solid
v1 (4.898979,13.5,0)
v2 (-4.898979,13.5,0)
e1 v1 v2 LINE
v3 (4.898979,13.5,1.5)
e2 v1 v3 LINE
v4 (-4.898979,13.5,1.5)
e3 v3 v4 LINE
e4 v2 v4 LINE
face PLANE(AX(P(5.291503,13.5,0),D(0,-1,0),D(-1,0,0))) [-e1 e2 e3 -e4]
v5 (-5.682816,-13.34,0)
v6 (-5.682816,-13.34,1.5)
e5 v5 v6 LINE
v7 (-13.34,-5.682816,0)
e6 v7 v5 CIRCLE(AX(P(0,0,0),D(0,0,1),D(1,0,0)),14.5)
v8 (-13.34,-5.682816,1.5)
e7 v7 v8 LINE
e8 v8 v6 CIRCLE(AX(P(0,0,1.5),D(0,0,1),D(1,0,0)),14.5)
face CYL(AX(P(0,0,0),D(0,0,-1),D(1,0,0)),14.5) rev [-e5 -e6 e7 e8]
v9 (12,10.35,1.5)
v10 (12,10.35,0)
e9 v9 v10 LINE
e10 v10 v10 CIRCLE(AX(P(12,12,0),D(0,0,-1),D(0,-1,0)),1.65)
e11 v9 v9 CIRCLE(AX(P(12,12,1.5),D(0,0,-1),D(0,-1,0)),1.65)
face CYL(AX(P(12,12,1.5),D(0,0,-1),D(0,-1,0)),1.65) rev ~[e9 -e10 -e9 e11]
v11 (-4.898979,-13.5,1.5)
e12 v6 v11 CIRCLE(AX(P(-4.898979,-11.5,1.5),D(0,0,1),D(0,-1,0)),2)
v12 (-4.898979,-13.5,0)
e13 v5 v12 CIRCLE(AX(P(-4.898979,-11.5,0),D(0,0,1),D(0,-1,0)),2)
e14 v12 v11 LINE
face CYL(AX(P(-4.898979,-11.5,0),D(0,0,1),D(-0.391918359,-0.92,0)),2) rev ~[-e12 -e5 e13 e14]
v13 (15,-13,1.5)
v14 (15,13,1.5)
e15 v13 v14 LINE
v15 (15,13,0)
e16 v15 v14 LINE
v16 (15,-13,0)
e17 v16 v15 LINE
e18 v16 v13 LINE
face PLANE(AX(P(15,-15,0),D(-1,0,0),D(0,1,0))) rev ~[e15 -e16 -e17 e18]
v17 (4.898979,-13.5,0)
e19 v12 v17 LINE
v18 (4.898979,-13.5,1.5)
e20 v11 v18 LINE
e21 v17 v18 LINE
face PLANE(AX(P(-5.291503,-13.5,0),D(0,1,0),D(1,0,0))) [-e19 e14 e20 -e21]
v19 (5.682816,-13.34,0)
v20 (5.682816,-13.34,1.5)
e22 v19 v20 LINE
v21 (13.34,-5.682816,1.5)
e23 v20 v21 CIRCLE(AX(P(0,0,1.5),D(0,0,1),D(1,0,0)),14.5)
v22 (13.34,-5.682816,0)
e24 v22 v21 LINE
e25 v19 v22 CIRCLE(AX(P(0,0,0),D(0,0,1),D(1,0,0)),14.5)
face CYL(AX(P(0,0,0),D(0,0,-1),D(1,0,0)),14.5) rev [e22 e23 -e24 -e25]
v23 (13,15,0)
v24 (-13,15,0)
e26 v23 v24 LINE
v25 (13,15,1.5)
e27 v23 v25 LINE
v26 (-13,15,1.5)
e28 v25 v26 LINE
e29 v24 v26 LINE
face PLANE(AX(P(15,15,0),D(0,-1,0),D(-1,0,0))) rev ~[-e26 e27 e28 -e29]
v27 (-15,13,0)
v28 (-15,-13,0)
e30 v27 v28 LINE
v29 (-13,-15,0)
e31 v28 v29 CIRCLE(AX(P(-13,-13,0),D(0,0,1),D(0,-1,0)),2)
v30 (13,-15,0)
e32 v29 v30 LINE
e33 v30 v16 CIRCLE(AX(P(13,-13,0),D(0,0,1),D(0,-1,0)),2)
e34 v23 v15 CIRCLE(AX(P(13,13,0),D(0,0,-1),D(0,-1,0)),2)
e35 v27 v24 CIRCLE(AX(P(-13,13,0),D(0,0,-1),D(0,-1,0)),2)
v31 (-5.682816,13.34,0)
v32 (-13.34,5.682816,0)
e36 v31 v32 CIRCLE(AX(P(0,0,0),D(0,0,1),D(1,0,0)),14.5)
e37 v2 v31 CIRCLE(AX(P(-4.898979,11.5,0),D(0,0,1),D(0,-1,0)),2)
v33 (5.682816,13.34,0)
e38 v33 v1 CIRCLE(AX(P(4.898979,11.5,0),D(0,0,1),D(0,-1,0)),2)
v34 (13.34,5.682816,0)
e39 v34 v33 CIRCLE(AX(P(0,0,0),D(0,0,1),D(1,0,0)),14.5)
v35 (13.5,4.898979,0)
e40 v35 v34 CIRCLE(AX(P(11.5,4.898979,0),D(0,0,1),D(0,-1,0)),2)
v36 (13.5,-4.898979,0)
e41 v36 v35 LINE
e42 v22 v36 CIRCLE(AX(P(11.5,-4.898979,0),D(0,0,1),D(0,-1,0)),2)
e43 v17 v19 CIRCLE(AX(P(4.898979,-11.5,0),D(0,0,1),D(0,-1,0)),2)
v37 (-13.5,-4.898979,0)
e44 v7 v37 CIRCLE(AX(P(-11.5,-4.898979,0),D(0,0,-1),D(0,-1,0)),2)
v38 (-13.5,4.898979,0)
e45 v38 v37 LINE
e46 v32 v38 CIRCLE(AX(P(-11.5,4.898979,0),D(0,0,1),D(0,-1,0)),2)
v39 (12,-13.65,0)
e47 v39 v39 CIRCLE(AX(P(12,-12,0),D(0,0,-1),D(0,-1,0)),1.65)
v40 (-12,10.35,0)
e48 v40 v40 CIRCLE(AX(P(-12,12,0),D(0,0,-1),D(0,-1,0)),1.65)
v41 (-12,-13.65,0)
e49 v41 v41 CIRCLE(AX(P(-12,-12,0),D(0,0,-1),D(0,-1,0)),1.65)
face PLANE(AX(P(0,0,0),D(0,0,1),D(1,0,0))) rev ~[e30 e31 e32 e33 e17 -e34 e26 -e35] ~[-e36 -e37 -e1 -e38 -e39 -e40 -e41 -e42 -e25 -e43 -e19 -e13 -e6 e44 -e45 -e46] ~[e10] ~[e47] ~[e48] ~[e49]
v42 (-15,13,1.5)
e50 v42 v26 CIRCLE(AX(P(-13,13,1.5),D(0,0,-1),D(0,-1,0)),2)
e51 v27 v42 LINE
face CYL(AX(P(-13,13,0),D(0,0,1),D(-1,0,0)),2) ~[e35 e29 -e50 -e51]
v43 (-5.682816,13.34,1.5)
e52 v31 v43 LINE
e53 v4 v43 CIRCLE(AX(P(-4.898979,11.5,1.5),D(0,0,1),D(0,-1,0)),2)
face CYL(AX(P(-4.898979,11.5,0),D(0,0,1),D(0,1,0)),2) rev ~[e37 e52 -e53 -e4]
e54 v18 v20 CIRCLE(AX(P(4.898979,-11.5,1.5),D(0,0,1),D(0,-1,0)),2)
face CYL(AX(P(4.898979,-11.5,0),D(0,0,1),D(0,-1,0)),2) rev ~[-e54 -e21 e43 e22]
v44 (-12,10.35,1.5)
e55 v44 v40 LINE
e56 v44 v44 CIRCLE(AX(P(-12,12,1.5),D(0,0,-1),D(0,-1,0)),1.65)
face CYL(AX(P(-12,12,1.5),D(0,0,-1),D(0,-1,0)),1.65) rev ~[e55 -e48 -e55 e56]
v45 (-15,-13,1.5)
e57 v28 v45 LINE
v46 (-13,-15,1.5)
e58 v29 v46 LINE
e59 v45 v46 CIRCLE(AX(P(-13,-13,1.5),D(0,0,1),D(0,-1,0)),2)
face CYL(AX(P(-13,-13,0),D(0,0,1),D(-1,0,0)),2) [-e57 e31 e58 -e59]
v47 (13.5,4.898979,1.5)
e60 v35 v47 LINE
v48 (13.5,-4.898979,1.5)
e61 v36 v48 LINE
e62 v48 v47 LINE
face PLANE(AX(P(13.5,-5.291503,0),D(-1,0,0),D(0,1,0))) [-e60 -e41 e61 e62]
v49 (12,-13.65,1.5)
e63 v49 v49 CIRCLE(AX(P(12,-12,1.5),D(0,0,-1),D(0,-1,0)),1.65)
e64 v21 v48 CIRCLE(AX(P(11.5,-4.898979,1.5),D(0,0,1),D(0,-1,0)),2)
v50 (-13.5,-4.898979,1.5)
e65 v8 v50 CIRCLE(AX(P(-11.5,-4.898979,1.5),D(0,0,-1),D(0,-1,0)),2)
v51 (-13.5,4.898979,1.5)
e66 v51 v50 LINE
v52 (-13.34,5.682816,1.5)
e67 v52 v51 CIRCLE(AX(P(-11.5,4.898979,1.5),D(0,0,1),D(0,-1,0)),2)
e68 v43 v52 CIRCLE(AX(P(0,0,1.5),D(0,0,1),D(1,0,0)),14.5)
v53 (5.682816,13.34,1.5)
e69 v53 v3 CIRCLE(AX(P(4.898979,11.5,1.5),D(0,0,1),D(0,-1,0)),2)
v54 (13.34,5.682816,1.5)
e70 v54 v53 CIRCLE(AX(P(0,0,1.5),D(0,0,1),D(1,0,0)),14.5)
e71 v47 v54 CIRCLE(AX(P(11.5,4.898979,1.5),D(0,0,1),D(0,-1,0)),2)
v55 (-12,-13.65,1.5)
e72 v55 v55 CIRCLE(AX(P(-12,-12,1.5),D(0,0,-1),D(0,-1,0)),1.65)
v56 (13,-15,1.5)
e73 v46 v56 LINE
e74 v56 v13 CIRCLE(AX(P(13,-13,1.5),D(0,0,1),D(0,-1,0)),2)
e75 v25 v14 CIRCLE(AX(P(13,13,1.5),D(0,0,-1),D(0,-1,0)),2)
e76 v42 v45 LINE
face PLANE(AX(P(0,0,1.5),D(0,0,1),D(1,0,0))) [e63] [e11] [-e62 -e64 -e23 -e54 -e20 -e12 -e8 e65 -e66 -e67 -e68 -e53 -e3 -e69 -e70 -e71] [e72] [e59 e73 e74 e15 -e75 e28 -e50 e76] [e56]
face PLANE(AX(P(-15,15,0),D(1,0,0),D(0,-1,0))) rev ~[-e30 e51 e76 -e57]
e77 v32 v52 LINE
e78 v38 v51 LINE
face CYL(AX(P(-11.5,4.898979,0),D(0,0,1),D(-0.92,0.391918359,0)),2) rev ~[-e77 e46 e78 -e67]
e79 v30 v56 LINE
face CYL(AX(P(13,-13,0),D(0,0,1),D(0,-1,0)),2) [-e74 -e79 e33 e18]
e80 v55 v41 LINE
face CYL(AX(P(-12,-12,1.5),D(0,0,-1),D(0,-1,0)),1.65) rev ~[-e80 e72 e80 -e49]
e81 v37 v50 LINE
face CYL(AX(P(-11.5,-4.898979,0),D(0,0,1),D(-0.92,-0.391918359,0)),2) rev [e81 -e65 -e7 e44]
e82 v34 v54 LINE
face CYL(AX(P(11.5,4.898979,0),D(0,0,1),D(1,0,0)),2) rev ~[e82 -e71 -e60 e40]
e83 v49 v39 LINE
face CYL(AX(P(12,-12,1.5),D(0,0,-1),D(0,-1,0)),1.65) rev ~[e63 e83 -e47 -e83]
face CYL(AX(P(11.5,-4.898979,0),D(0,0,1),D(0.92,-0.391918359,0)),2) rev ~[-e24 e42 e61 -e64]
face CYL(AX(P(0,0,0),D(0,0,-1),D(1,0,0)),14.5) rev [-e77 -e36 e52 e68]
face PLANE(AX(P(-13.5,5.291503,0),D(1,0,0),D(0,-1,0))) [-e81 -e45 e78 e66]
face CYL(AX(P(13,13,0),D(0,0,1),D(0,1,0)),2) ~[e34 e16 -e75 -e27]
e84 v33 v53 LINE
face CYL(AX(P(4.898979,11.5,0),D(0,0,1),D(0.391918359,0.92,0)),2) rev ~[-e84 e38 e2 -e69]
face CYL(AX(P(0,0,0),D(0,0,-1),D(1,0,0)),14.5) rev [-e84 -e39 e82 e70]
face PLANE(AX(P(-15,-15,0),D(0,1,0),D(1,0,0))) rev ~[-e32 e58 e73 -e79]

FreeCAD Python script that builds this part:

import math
import FreeCAD as App
import Part
import Sketcher


def edges_at(feature, points):
    """Names of the edges that pass closest to the given points."""
    edges = feature.Shape.Edges
    near = lambda p: min(range(len(edges)), key=lambda i: edges[i].distToShape(Part.Vertex(*p))[0])
    return sorted({f"Edge{near(p) + 1}" for p in points})


def add_polygon(sketch, points):
    """Adds a closed chain of lines whose ends are joined by coincident constraints."""
    first, n = sketch.GeometryCount, len(points)
    for a, b in zip(points, points[1:] + points[:1]):
        sketch.addGeometry(Part.LineSegment(App.Vector(*a, 0), App.Vector(*b, 0)), False)
    for i in range(n):
        sketch.addConstraint(Sketcher.Constraint("Coincident", first + i, 2, first + (i + 1) % n, 1))

doc = App.newDocument("Part")
params = doc.addObject("Spreadsheet::Sheet", "Params")
for row, (alias, value) in enumerate([
    ("sketch1_radius", "14.5 mm"),
    ("sketch1_width", "30 mm"),
    ("pad1_length", "1.5 mm"),
    ("fillet_radius", "2 mm"),
    ("sketch2_diameter", "3.3 mm"),
    ("hole_diameter", "3.3 mm"),
], start=1):
    params.set(f"A{row}", alias)
    params.set(f"B{row}", "=" + value)
    params.setAlias(f"B{row}", alias)

body = doc.addObject("PartDesign::Body", "Body")

# Sketch on XY plane
sketch1 = doc.addObject("Sketcher::SketchObject", "Sketch")
body.addObject(sketch1)
sketch1.AttachmentSupport = (doc.XY_Plane, [""])
sketch1.MapMode = "FlatFace"
add_polygon(sketch1, [(-15, 15), (-15, -15), (15, -15), (15, 15)])  # lines 0-3
sketch1.addGeometry(Part.ArcOfCircle(Part.Circle(App.Vector(0, 0, 0), App.Vector(0, 0, 1), 14), math.radians(-159), math.radians(-111)), False)  # 4
sketch1.addGeometry(Part.LineSegment(App.Vector(-14, -5, 0), App.Vector(-14, 5, 0)), False)  # 5
sketch1.addGeometry(Part.ArcOfCircle(Part.Circle(App.Vector(0, 0, 0), App.Vector(0, 0, 1), 14), math.radians(111), math.radians(159)), False)  # 6
sketch1.addGeometry(Part.LineSegment(App.Vector(-5, 14, 0), App.Vector(5, 14, 0)), False)  # 7
sketch1.addGeometry(Part.ArcOfCircle(Part.Circle(App.Vector(0, 0, 0), App.Vector(0, 0, 1), 14), math.radians(21), math.radians(69)), False)  # 8
sketch1.addGeometry(Part.LineSegment(App.Vector(14, 5, 0), App.Vector(14, -5, 0)), False)  # 9
sketch1.addGeometry(Part.ArcOfCircle(Part.Circle(App.Vector(0, 0, 0), App.Vector(0, 0, 1), 14), math.radians(-69), math.radians(-21)), False)  # 10
sketch1.addGeometry(Part.LineSegment(App.Vector(5, -14, 0), App.Vector(-5, -14, 0)), False)  # 11
sketch1.addConstraint([
    Sketcher.Constraint("Coincident", 4, 1, 5, 1),
    Sketcher.Constraint("Coincident", 5, 2, 6, 2),
    Sketcher.Constraint("Coincident", 6, 1, 7, 1),
    Sketcher.Constraint("Coincident", 7, 2, 8, 2),
    Sketcher.Constraint("Coincident", 8, 1, 9, 1),
    Sketcher.Constraint("Coincident", 9, 2, 10, 2),
    Sketcher.Constraint("Coincident", 10, 1, 11, 1),
    Sketcher.Constraint("Coincident", 11, 2, 4, 2),
    Sketcher.Constraint("Vertical", 0),
    Sketcher.Constraint("Horizontal", 1),
    Sketcher.Constraint("Vertical", 2),
    Sketcher.Constraint("Horizontal", 3),
    Sketcher.Constraint("Vertical", 5),
    Sketcher.Constraint("Horizontal", 7),
    Sketcher.Constraint("Vertical", 9),
    Sketcher.Constraint("Horizontal", 11),
    Sketcher.Constraint("Coincident", 4, 3, -1, 1),
    Sketcher.Constraint("Coincident", 6, 3, -1, 1),
    Sketcher.Constraint("Coincident", 8, 3, -1, 1),
    Sketcher.Constraint("Coincident", 10, 3, -1, 1),
    Sketcher.Constraint("Equal", 4, 6),
    Sketcher.Constraint("Equal", 6, 8),
    Sketcher.Constraint("Equal", 8, 10),
    Sketcher.Constraint("Symmetric", 0, 2, 2, 2, -1, 1),
    Sketcher.Constraint("Horizontal", 5, 2, 8, 1),
    Sketcher.Constraint("Vertical", 7, 2, 10, 1),
    Sketcher.Constraint("Equal", 3, 0),
    Sketcher.Constraint("Equal", 11, 5),
    Sketcher.Constraint("Radius", 4, 14.5),
    Sketcher.Constraint("DistanceX", 1, 1, 1, 2, 30.0),
    Sketcher.Constraint("DistanceX", 4, 1, -1, 1, 13.5),
])
sketch1.setExpression("Constraints[32]", "Params.sketch1_radius")
sketch1.setExpression("Constraints[33]", "Params.sketch1_width")
pad1 = doc.addObject("PartDesign::Pad", "Pad")
body.addObject(pad1)
pad1.Profile = sketch1
pad1.setExpression("Length", "Params.pad1_length")
doc.recompute()

fillet = doc.addObject("PartDesign::Fillet", "Fillet")
body.addObject(fillet)
fillet.Base = (pad1, edges_at(pad1, [
    (15, -15, 0.75),
    (15, 15, 0.75),
    (5.292, 13.5, 0.75),
    (-13.5, 5.292, 0.75),
    (-15, -15, 0.75),
    (-15, 15, 0.75),
    (13.5, 5.292, 0.75),
    (-5.292, 13.5, 0.75),
    (-5.292, -13.5, 0.75),
    (-13.5, -5.292, 0.75),
    (5.292, -13.5, 0.75),
    (13.5, -5.292, 0.75),
]))
fillet.setExpression("Radius", "Params.fillet_radius")

# Sketch on XY plane
sketch2 = doc.addObject("Sketcher::SketchObject", "Sketch001")
body.addObject(sketch2)
sketch2.AttachmentSupport = (doc.XY_Plane, [""])
sketch2.MapMode = "FlatFace"
sketch2.AttachmentOffset = App.Placement(App.Vector(0, 0, 1.5), App.Rotation())
sketch2.addGeometry([
    Part.Circle(App.Vector(-12, 12, 0), App.Vector(0, 0, 1), 1.6),
    Part.Circle(App.Vector(12, 12, 0), App.Vector(0, 0, 1), 1.6),
    Part.Circle(App.Vector(12, -12, 0), App.Vector(0, 0, 1), 1.6),
    Part.Circle(App.Vector(-12, -12, 0), App.Vector(0, 0, 1), 1.6),
], False)
sketch2.addConstraint([
    Sketcher.Constraint("Equal", 0, 1),
    Sketcher.Constraint("Equal", 1, 2),
    Sketcher.Constraint("Equal", 2, 3),
    Sketcher.Constraint("Symmetric", 0, 3, 2, 3, -1, 1),
    Sketcher.Constraint("Symmetric", 1, 3, 3, 3, -1, 1),
    Sketcher.Constraint("Symmetric", 0, 3, 1, 3, -2),
    Sketcher.Constraint("Diameter", 0, 3.3),
    Sketcher.Constraint("DistanceX", 0, 3, -1, 1, 12.0),
    Sketcher.Constraint("DistanceY", -1, 1, 0, 3, 12.0),
])
sketch2.setExpression("Constraints[6]", "Params.sketch2_diameter")
doc.recompute()
hole = doc.addObject("PartDesign::Hole", "Hole")
body.addObject(hole)
hole.Profile = sketch2
hole.ThreadType = "None"
hole.setExpression("Diameter", "Params.hole_diameter")
hole.DepthType = "ThroughAll"

doc.recompute()
